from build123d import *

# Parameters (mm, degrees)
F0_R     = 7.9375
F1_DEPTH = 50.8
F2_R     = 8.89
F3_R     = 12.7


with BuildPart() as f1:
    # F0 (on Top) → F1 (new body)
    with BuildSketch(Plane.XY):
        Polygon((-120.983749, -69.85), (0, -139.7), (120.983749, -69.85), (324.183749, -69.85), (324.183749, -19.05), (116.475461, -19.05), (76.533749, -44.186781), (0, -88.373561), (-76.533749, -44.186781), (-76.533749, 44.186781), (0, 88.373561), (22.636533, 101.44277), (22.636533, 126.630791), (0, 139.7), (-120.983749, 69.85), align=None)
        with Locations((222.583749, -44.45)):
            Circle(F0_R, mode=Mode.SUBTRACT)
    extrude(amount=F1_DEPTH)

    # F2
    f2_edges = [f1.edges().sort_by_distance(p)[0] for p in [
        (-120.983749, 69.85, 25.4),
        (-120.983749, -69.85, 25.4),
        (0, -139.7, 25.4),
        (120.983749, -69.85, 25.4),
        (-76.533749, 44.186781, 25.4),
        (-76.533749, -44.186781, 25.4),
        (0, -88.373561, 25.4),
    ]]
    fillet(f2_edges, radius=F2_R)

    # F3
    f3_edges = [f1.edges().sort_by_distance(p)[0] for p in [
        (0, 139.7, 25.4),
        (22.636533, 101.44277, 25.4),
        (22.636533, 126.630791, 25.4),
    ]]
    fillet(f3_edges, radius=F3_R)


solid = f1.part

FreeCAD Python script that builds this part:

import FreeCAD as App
import Part
import Sketcher

V = App.Vector
Q = App.Units.Quantity


def edges_at(feature, points):
    """Names of the edges that pass closest to the given points."""
    edges = feature.Shape.Edges
    near = lambda p: min(range(len(edges)), key=lambda i: edges[i].distToShape(Part.Vertex(*p))[0])
    return sorted({f"Edge{near(p) + 1}" for p in points})


def add_polygon(sketch, points):
    """Adds a closed chain of lines whose ends are joined by coincident constraints."""
    first, n = sketch.GeometryCount, len(points)
    for a, b in zip(points, points[1:] + points[:1]):
        sketch.addGeometry(Part.LineSegment(App.Vector(*a, 0), App.Vector(*b, 0)), False)
    for i in range(n):
        sketch.addConstraint(Sketcher.Constraint("Coincident", first + i, 2, first + (i + 1) % n, 1))

doc = App.newDocument("Part")
body = doc.addObject("PartDesign::Body", "Body")

# Sketch on XY plane
sketch1 = doc.addObject("Sketcher::SketchObject", "Sketch")
body.addObject(sketch1)
sketch1.AttachmentSupport = (doc.XY_Plane, [""])
sketch1.MapMode = "FlatFace"
add_polygon(sketch1, [(-121, -70), (0, -140), (121, -70), (324, -70), (324, -19), (116, -19), (77, -44), (0, -88), (-77, -44), (-77, 44), (0, 88), (23, 101), (23, 127), (0, 140), (-121, 70)])  # lines 0-14
sketch1.addGeometry(Part.Circle(V(223, -44, 0), V(0, 0, 1), 8), False)  # 15
sketch1.addConstraint(Sketcher.Constraint("Horizontal", 2))
sketch1.addConstraint(Sketcher.Constraint("Vertical", 3))
sketch1.addConstraint(Sketcher.Constraint("Horizontal", 4))
sketch1.addConstraint(Sketcher.Constraint("Vertical", 8))
sketch1.addConstraint(Sketcher.Constraint("Vertical", 11))
sketch1.addConstraint(Sketcher.Constraint("Vertical", 14))
sketch1.addConstraint(Sketcher.Constraint("Symmetric", 5, 2, 8, 2, -1, 1))
sketch1.addConstraint(Sketcher.Constraint("Symmetric", 6, 2, 9, 2, -1, 1))
sketch1.addConstraint(Sketcher.Constraint("Symmetric", 0, 2, 12, 2, -1, 1))
sketch1.addConstraint(Sketcher.Constraint("Symmetric", 1, 2, 13, 2, -1, 1))
sketch1.addConstraint(Sketcher.Constraint("PointOnObject", 0, 2, -2))
sketch1.addConstraint(Sketcher.Constraint("PointOnObject", 6, 2, -2))
sketch1.addConstraint(Sketcher.Constraint("Parallel", 1, 6))
sketch1.addConstraint(Sketcher.Constraint("Parallel", 0, 7))
sketch1.addConstraint(Sketcher.Constraint("Parallel", 9, 10))
sketch1.addConstraint(Sketcher.Constraint("Parallel", 7, 12))
sketch1.addConstraint(Sketcher.Constraint("Horizontal", 5, 2, 7, 2))
sketch1.addConstraint(Sketcher.Constraint("DistanceX", 2, 1, 2, 2, Q("8 in")))
sketch1.addConstraint(Sketcher.Constraint("DistanceY", 3, 1, 3, 2, Q("2 in")))
sketch1.addConstraint(Sketcher.Constraint("Diameter", 15, Q("0.625 in")))
sketch1.addConstraint(Sketcher.Constraint("DistanceY", 14, 2, 14, 1, Q("5.5 in")))
sketch1.addConstraint(Sketcher.Constraint("Angle", 0, Q("-30 deg")))
sketch1.addConstraint(Sketcher.Constraint("DistanceX", 1, 2, 15, 3, Q("4 in")))
sketch1.addConstraint(Sketcher.Constraint("DistanceY", 1, 2, 15, 3, Q("1 in")))
sketch1.addConstraint(Sketcher.Constraint("Distance", 0, Q("5.5 in")))
sketch1.addConstraint(Sketcher.Constraint("DistanceX", 5, 2, 1, 2, Q("1.75 in")))
sketch1.addConstraint(Sketcher.Constraint("Distance", 5, Q("1.858 in")))
sketch1.addConstraint(Sketcher.Constraint("DistanceY", 11, 1, 11, 2, 25.188021))
sketch1.addConstraint(Sketcher.Constraint("DistanceX", 4, 2, 4, 1, 207.708288))
pad1 = doc.addObject("PartDesign::Pad", "Pad")
body.addObject(pad1)
pad1.Profile = sketch1
pad1.Length = Q("2 in")
doc.recompute()

fillet = doc.addObject("PartDesign::Fillet", "Fillet")
body.addObject(fillet)
fillet.Base = (pad1, edges_at(pad1, [
    (-120.984, 69.85, 25.4),
    (-120.984, -69.85, 25.4),
    (0, -139.7, 25.4),
    (120.984, -69.85, 25.4),
    (-76.534, 44.187, 25.4),
    (-76.534, -44.187, 25.4),
    (0, -88.374, 25.4),
]))
fillet.Radius = Q("0.35 in")
doc.recompute()

fillet2 = doc.addObject("PartDesign::Fillet", "Fillet001")
body.addObject(fillet2)
fillet2.Base = (fillet, edges_at(fillet, [(0, 139.7, 25.4), (22.637, 101.443, 25.4), (22.637, 126.631, 25.4)]))
fillet2.Radius = Q("0.5 in")

doc.recompute()
